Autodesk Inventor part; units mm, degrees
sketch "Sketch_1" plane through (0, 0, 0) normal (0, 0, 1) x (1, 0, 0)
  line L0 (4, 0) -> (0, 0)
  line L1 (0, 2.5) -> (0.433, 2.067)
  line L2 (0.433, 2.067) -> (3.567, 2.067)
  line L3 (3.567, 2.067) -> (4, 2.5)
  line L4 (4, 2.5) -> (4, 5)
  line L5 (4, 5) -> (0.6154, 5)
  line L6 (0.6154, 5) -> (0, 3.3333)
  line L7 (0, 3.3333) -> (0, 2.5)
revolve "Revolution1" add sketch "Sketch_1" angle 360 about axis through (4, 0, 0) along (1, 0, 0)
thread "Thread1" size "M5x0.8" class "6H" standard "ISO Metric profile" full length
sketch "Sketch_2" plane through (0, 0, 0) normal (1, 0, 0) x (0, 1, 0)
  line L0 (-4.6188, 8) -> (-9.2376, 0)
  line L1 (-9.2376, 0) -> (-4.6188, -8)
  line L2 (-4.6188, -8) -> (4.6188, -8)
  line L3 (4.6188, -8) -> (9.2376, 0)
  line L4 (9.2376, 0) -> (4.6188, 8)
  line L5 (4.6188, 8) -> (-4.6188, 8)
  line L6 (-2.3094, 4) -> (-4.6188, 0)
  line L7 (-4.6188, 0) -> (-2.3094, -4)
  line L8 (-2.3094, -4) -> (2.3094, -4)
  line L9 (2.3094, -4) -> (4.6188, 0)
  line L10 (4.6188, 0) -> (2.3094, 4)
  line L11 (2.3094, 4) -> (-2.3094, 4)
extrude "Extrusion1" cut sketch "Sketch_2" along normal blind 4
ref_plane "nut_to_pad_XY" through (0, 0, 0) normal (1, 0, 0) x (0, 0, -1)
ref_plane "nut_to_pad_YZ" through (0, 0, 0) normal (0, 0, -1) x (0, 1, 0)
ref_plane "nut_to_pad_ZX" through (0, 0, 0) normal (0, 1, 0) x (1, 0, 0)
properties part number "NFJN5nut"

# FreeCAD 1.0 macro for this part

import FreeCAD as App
import Part
import Sketcher
from FreeCAD import Vector
Q = App.Units.Quantity

doc = App.newDocument("Part")
body = doc.addObject("PartDesign::Body", "Body")

# Sketch on XY plane
sketch1 = body.newObject("Sketcher::SketchObject", "Sketch")
sketch1.AttachmentSupport = (doc.getObject("XY_Plane"), [""])
sketch1.MapMode = "FlatFace"
sketch1.addGeometry([
    Part.LineSegment(Vector(0, 3.3, 0), Vector(0, 2.5, 0)),  # 0
    Part.LineSegment(Vector(0, 2.5, 0), Vector(0.4, 2.1, 0)),  # 1
    Part.LineSegment(Vector(0.4, 2.1, 0), Vector(3.6, 2.1, 0)),  # 2
    Part.LineSegment(Vector(3.6, 2.1, 0), Vector(4, 2.5, 0)),  # 3
    Part.LineSegment(Vector(4, 2.5, 0), Vector(4, 5, 0)),  # 4
    Part.LineSegment(Vector(4, 5, 0), Vector(0.6, 5, 0)),  # 5
    Part.LineSegment(Vector(0.6, 5, 0), Vector(0, 3.3, 0)),  # 6
], False)
sketch1.addConstraint([
    Sketcher.Constraint("Coincident", 0, 2, 1, 1),
    Sketcher.Constraint("Coincident", 1, 2, 2, 1),
    Sketcher.Constraint("Coincident", 2, 2, 3, 1),
    Sketcher.Constraint("Coincident", 3, 2, 4, 1),
    Sketcher.Constraint("Coincident", 4, 2, 5, 1),
    Sketcher.Constraint("Coincident", 5, 2, 6, 1),
    Sketcher.Constraint("Coincident", 6, 2, 0, 1),
    Sketcher.Constraint("Vertical", 0),
    Sketcher.Constraint("Horizontal", 2),
    Sketcher.Constraint("Vertical", 4),
    Sketcher.Constraint("Horizontal", 5),
    Sketcher.Constraint("PointOnObject", 0, 2, -2),
    Sketcher.Constraint("Perpendicular", 1, 3),
    Sketcher.Constraint("Horizontal", 0, 2, 3, 2),
    Sketcher.Constraint("Equal", 1, 3),
    Sketcher.Constraint("DistanceY", 4, 1, 4, 2, Q("2.5 mm")),
    Sketcher.Constraint("DistanceX", -1, 1, 3, 2, Q("4 mm")),
    Sketcher.Constraint("DistanceY", -1, 1, 4, 2, Q("5 mm")),
    Sketcher.Constraint("DistanceX", 2, 1, 2, 2, Q("3.134 mm")),
    Sketcher.Constraint("DistanceX", 5, 2, 5, 1, Q("3.3846 mm")),
    Sketcher.Constraint("DistanceY", 0, 2, 0, 1, Q("0.8333 mm")),
])
revolution = body.newObject("PartDesign::Revolution", "Revolution")
revolution.Profile = sketch1
revolution.ReferenceAxis = (sketch1, ["H_Axis"])
revolution.Angle = 360

# Sketch on YZ plane
sketch2 = body.newObject("Sketcher::SketchObject", "Sketch001")
sketch2.AttachmentSupport = (doc.getObject("YZ_Plane"), [""])
sketch2.MapMode = "FlatFace"
sketch2.addGeometry([
    Part.LineSegment(Vector(4.6, 8, 0), Vector(-4.6, 8, 0)),  # 0
    Part.LineSegment(Vector(-4.6, 8, 0), Vector(-9.2, 0, 0)),  # 1
    Part.LineSegment(Vector(-9.2, 0, 0), Vector(-4.6, -8, 0)),  # 2
    Part.LineSegment(Vector(-4.6, -8, 0), Vector(4.6, -8, 0)),  # 3
    Part.LineSegment(Vector(4.6, -8, 0), Vector(9.2, 0, 0)),  # 4
    Part.LineSegment(Vector(9.2, 0, 0), Vector(4.6, 8, 0)),  # 5
    Part.LineSegment(Vector(-4.6, 0, 0), Vector(-2.3, 4, 0)),  # 6
    Part.LineSegment(Vector(-2.3, 4, 0), Vector(2.3, 4, 0)),  # 7
    Part.LineSegment(Vector(2.3, 4, 0), Vector(4.6, 0, 0)),  # 8
    Part.LineSegment(Vector(4.6, 0, 0), Vector(2.3, -4, 0)),  # 9
    Part.LineSegment(Vector(2.3, -4, 0), Vector(-2.3, -4, 0)),  # 10
    Part.LineSegment(Vector(-2.3, -4, 0), Vector(-4.6, 0, 0)),  # 11
], False)
sketch2.addConstraint([
    Sketcher.Constraint("Coincident", 0, 2, 1, 1),
    Sketcher.Constraint("Coincident", 1, 2, 2, 1),
    Sketcher.Constraint("Coincident", 2, 2, 3, 1),
    Sketcher.Constraint("Coincident", 3, 2, 4, 1),
    Sketcher.Constraint("Coincident", 4, 2, 5, 1),
    Sketcher.Constraint("Coincident", 5, 2, 0, 1),
    Sketcher.Constraint("Coincident", 6, 2, 7, 1),
    Sketcher.Constraint("Coincident", 7, 2, 8, 1),
    Sketcher.Constraint("Coincident", 8, 2, 9, 1),
    Sketcher.Constraint("Coincident", 9, 2, 10, 1),
    Sketcher.Constraint("Coincident", 10, 2, 11, 1),
    Sketcher.Constraint("Coincident", 11, 2, 6, 1),
    Sketcher.Constraint("Horizontal", 0),
    Sketcher.Constraint("Horizontal", 3),
    Sketcher.Constraint("Horizontal", 7),
    Sketcher.Constraint("Horizontal", 10),
    Sketcher.Constraint("Symmetric", 0, 2, 3, 2, -1, 1),
    Sketcher.Constraint("Symmetric", 1, 2, 4, 2, -1, 1),
    Sketcher.Constraint("Symmetric", 6, 2, 9, 2, -1, 1),
    Sketcher.Constraint("Symmetric", 8, 2, 11, 2, -1, 1),
    Sketcher.Constraint("PointOnObject", 1, 2, -1),
    Sketcher.Constraint("PointOnObject", 8, 2, -1),
    Sketcher.Constraint("Parallel", 2, 5),
    Sketcher.Constraint("Parallel", 4, 6),
    Sketcher.Constraint("Parallel", 5, 8),
    Sketcher.Constraint("Parallel", 8, 11),
    Sketcher.Constraint("Vertical", 0, 2, 2, 2),
    Sketcher.Constraint("Vertical", 5, 2, 8, 2),
    Sketcher.Constraint("Angle", 1, Q("-120 deg")),
    Sketcher.Constraint("DistanceY", -1, 1, 0, 2, Q("8 mm")),
    Sketcher.Constraint("DistanceY", -1, 1, 6, 2, Q("4 mm")),
    Sketcher.Constraint("DistanceX", 0, 2, 0, 1, Q("9.2376 mm")),
])
pocket1 = body.newObject("PartDesign::Pocket", "Pocket")
pocket1.Profile = sketch2
pocket1.Length = 4
pocket1.Reversed = True

doc.recompute()
